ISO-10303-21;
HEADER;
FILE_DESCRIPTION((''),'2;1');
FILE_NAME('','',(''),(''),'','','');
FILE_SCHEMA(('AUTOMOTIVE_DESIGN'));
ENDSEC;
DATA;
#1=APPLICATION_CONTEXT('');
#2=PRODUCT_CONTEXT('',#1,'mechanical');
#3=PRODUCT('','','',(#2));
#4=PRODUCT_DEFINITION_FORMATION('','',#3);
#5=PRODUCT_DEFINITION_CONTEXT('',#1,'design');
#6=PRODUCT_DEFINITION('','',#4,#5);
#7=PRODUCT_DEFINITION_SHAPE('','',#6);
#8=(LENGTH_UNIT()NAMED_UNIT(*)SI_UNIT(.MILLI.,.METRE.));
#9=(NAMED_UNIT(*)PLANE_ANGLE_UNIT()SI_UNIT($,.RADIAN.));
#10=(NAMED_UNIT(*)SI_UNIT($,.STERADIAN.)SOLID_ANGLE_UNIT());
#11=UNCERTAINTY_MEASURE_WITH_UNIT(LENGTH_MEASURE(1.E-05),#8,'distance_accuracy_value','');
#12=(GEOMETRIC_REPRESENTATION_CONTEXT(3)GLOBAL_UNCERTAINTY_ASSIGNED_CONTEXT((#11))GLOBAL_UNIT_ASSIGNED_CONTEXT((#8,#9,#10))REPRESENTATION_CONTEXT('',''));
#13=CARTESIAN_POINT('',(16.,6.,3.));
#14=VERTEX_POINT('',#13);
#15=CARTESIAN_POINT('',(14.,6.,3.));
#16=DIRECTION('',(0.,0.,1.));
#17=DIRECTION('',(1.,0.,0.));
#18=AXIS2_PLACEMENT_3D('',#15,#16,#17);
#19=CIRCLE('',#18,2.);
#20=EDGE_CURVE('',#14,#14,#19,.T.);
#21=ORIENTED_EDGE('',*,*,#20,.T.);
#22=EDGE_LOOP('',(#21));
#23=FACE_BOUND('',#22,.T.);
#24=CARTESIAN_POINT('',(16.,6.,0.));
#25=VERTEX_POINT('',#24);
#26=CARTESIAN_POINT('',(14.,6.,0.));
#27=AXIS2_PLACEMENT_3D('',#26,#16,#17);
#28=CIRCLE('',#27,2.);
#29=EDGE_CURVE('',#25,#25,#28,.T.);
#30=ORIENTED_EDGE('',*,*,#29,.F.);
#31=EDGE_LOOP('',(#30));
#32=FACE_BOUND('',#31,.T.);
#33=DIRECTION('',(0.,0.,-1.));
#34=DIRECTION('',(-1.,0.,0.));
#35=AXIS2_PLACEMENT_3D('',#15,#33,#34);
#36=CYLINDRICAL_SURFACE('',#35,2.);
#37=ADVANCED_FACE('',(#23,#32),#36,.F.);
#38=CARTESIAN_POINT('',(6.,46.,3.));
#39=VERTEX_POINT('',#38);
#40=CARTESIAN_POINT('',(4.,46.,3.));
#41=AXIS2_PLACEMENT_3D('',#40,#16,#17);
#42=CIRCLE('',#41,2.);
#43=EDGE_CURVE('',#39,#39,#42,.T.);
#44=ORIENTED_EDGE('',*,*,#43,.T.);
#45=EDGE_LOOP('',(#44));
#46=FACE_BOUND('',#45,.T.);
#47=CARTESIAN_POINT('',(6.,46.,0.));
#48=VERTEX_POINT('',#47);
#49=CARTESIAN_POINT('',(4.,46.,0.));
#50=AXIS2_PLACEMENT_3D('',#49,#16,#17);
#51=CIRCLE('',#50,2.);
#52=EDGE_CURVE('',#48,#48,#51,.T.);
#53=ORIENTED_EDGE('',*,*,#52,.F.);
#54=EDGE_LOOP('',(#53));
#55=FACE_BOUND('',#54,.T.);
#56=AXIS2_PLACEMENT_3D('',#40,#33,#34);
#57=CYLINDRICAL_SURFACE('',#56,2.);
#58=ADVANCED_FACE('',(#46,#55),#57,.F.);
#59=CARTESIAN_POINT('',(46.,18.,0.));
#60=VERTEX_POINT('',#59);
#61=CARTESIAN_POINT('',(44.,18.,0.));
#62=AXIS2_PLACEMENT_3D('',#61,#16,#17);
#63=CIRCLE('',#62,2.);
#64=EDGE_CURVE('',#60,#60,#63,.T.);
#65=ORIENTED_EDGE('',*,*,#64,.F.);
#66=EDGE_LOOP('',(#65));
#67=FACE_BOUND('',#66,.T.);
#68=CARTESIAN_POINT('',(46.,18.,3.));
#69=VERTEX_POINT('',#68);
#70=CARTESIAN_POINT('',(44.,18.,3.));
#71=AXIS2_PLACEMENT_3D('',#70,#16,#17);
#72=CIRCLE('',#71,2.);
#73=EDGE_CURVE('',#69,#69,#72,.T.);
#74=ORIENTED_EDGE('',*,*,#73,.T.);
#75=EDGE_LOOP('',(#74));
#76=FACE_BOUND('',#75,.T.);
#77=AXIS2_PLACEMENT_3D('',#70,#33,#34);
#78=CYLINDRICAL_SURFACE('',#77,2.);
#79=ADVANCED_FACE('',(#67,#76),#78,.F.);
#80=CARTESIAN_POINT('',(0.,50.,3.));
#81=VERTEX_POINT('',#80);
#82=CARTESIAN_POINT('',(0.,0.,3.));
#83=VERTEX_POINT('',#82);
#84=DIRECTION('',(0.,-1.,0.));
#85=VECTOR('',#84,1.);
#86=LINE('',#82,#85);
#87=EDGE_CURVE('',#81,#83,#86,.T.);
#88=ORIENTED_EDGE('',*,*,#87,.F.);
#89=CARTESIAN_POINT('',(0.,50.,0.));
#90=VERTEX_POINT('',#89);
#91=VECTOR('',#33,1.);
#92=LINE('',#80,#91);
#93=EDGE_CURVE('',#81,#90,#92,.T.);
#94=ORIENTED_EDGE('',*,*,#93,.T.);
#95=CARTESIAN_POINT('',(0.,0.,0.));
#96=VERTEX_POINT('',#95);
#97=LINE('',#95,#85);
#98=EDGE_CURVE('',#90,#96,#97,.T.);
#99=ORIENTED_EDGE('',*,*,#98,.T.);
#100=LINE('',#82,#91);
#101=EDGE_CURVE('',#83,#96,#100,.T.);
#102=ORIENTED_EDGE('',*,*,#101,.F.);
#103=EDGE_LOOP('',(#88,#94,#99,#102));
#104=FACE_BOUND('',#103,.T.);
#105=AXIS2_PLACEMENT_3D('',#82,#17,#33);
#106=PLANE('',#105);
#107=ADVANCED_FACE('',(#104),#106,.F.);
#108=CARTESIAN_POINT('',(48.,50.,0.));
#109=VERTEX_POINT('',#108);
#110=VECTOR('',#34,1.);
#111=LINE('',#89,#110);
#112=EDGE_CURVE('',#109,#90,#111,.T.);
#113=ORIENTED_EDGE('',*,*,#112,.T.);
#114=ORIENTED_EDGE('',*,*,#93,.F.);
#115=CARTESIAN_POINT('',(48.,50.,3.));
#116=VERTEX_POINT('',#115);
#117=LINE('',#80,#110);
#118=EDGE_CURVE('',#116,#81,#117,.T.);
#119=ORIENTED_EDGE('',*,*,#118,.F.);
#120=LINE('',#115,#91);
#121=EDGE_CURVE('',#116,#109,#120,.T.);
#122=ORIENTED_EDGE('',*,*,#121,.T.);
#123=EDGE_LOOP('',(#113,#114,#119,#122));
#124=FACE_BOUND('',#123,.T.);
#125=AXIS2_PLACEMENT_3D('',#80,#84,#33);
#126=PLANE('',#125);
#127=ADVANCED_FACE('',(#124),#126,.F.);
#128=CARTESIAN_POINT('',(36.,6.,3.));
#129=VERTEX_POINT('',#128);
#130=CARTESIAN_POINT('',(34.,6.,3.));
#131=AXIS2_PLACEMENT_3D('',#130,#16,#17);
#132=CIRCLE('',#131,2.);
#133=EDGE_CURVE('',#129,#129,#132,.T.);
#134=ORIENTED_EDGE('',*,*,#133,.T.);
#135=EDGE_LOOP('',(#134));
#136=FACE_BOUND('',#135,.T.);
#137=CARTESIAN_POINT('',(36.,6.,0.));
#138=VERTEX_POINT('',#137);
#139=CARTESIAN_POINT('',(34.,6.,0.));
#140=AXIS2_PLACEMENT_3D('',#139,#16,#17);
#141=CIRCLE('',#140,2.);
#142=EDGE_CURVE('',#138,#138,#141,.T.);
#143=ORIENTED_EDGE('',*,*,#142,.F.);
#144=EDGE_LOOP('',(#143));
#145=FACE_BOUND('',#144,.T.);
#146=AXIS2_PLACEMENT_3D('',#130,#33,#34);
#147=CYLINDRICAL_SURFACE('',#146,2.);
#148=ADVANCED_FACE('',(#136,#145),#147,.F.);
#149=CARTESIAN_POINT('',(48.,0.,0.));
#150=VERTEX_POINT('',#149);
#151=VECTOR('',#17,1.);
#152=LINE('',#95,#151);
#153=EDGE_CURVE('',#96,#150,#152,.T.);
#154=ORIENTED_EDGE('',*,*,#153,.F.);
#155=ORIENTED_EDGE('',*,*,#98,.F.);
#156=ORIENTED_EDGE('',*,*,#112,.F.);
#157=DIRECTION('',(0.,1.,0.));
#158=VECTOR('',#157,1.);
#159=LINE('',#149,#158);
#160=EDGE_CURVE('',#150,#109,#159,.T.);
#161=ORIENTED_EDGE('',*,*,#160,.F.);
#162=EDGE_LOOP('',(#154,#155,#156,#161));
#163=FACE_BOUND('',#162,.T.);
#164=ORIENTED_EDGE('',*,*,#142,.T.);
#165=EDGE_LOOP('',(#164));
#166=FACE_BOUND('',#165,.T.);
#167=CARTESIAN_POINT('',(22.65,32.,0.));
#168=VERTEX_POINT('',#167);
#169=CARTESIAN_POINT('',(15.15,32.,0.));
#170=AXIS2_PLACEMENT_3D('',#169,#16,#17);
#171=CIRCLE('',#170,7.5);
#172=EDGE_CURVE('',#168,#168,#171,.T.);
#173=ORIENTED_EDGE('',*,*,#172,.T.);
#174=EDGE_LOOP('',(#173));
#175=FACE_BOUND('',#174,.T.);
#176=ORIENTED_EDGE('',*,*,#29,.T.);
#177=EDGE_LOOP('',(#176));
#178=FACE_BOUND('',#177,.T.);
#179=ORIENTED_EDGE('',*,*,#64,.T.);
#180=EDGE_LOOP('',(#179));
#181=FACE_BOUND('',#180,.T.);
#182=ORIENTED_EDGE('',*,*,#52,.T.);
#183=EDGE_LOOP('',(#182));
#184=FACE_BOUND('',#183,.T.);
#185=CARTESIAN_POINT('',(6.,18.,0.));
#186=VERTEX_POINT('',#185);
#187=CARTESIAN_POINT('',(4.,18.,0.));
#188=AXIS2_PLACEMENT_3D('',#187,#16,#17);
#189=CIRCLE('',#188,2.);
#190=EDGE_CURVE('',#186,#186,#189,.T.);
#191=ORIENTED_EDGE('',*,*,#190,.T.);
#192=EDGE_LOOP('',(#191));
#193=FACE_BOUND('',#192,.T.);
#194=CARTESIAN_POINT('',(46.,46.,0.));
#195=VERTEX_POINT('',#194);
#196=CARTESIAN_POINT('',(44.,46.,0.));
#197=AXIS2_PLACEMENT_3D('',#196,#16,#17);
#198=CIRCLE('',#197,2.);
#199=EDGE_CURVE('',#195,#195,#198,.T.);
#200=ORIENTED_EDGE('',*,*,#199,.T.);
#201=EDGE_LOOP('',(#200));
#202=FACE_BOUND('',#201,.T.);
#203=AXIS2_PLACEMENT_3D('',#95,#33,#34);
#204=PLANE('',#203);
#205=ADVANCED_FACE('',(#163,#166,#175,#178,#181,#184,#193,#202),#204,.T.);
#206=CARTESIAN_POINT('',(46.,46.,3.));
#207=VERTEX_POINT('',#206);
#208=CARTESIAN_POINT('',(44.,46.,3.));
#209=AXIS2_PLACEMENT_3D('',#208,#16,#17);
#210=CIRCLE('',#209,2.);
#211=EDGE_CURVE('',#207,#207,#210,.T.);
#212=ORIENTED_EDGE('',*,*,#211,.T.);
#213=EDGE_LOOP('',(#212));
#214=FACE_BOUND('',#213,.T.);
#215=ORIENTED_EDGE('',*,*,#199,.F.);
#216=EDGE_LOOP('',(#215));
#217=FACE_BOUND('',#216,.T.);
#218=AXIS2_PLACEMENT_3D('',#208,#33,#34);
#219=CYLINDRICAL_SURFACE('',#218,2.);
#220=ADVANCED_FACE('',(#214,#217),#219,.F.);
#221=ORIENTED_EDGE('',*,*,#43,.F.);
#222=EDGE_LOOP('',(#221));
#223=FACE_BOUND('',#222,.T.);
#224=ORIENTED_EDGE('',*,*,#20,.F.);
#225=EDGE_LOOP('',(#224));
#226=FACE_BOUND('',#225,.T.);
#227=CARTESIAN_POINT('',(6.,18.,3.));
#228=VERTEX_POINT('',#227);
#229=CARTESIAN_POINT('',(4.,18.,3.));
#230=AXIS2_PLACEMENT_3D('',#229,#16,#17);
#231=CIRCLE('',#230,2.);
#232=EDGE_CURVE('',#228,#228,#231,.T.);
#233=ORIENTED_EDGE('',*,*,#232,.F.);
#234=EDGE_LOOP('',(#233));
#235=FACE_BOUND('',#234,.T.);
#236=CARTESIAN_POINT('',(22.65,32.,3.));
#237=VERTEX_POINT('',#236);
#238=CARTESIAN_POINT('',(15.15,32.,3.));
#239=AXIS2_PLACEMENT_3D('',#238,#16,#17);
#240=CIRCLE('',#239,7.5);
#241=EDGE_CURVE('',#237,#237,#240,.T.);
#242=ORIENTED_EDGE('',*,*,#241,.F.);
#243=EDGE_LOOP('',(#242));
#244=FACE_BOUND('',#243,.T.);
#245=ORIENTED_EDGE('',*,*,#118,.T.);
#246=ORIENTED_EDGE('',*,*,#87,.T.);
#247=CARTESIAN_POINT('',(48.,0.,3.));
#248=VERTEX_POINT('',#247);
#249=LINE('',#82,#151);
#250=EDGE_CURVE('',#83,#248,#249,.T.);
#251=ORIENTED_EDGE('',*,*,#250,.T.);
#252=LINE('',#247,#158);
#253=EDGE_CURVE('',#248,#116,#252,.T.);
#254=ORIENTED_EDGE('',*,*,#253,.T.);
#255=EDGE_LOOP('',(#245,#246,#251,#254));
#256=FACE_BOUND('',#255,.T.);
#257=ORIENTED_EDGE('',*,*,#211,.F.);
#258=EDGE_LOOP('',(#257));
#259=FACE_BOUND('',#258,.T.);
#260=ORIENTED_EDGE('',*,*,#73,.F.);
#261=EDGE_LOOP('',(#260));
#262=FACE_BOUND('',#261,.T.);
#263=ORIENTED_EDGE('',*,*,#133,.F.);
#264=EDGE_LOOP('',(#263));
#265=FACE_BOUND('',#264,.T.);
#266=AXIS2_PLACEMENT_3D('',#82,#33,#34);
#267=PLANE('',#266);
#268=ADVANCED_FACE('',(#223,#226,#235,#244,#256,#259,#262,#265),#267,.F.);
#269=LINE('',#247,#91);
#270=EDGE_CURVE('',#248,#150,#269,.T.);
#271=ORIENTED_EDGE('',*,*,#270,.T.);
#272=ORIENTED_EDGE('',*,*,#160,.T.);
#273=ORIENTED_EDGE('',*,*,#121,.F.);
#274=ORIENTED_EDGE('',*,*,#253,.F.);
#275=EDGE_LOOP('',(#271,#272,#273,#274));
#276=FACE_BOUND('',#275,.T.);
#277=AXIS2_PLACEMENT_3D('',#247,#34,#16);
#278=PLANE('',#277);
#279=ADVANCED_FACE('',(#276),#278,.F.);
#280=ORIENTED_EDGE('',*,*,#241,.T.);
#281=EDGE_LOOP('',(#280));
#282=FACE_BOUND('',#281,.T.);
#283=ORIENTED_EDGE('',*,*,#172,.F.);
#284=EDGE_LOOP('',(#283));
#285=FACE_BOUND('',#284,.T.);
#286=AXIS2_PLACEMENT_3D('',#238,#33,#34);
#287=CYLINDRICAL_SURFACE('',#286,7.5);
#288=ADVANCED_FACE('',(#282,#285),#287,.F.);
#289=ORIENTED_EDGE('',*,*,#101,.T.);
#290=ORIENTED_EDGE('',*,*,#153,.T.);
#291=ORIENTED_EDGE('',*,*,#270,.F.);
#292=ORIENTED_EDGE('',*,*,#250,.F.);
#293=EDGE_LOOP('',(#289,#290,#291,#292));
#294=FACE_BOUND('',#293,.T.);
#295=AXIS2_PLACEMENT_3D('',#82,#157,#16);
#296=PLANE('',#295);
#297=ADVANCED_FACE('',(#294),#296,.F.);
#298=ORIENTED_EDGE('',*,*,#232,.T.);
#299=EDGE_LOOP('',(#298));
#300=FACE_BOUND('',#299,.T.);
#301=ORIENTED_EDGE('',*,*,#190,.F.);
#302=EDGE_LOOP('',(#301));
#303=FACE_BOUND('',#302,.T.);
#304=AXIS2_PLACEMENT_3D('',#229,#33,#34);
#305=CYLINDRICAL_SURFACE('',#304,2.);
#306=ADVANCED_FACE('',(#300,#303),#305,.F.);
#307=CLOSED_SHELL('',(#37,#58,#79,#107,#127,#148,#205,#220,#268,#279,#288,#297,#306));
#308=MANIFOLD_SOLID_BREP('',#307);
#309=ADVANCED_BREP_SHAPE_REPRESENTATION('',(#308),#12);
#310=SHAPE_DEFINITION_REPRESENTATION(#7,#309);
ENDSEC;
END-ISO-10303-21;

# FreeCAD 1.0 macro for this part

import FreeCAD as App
import Part
import Sketcher
from FreeCAD import Vector
Q = App.Units.Quantity


def add_polygon(sketch, points):
    """Adds a closed chain of lines whose ends are joined by coincident constraints."""
    first, n = sketch.GeometryCount, len(points)
    for a, b in zip(points, points[1:] + points[:1]):
        sketch.addGeometry(Part.LineSegment(App.Vector(*a, 0), App.Vector(*b, 0)), False)
    for i in range(n):
        sketch.addConstraint(Sketcher.Constraint("Coincident", first + i, 2, first + (i + 1) % n, 1))

doc = App.newDocument("Part")
body = doc.addObject("PartDesign::Body", "Body")

# Sketch on XY plane
sketch1 = body.newObject("Sketcher::SketchObject", "Sketch")
sketch1.AttachmentSupport = (doc.getObject("XY_Plane"), [""])
sketch1.MapMode = "FlatFace"
add_polygon(sketch1, [(0, 50), (0, 0), (48, 0), (48, 50)])  # lines 0-3
sketch1.addGeometry(Part.Circle(Vector(14, 6, 0), Vector(0, 0, 1), 2), False)  # 4
sketch1.addGeometry(Part.Circle(Vector(4, 18, 0), Vector(0, 0, 1), 2), False)  # 5
sketch1.addGeometry(Part.Circle(Vector(34, 6, 0), Vector(0, 0, 1), 2), False)  # 6
sketch1.addGeometry(Part.Circle(Vector(44, 18, 0), Vector(0, 0, 1), 2), False)  # 7
sketch1.addGeometry(Part.Circle(Vector(15.15, 32, 0), Vector(0, 0, 1), 7.5), False)  # 8
sketch1.addGeometry(Part.Circle(Vector(4, 46, 0), Vector(0, 0, 1), 2), False)  # 9
sketch1.addGeometry(Part.Circle(Vector(44, 46, 0), Vector(0, 0, 1), 2), False)  # 10
sketch1.addConstraint([
    Sketcher.Constraint("Vertical", 0),
    Sketcher.Constraint("Horizontal", 1),
    Sketcher.Constraint("Vertical", 2),
    Sketcher.Constraint("Horizontal", 3),
    Sketcher.Constraint("Coincident", 0, 2, -1, 1),
    Sketcher.Constraint("Equal", 4, 5),
    Sketcher.Constraint("Equal", 5, 6),
    Sketcher.Constraint("Equal", 6, 7),
    Sketcher.Constraint("Equal", 7, 9),
    Sketcher.Constraint("Equal", 9, 10),
    Sketcher.Constraint("Horizontal", 4, 3, 6, 3),
    Sketcher.Constraint("Horizontal", 5, 3, 7, 3),
    Sketcher.Constraint("Horizontal", 9, 3, 10, 3),
    Sketcher.Constraint("Vertical", 5, 3, 9, 3),
    Sketcher.Constraint("Vertical", 7, 3, 10, 3),
    Sketcher.Constraint("Diameter", 4, Q("4 mm")),
    Sketcher.Constraint("Diameter", 8, Q("15 mm")),
    Sketcher.Constraint("DistanceX", 1, 1, 1, 2, Q("48 mm")),
    Sketcher.Constraint("DistanceY", 0, 2, 0, 1, Q("50 mm")),
    Sketcher.Constraint("DistanceX", -1, 1, 4, 3, Q("14 mm")),
    Sketcher.Constraint("DistanceY", -1, 1, 4, 3, Q("6 mm")),
    Sketcher.Constraint("DistanceX", -1, 1, 5, 3, Q("4 mm")),
    Sketcher.Constraint("DistanceY", -1, 1, 5, 3, Q("18 mm")),
    Sketcher.Constraint("DistanceX", -1, 1, 6, 3, Q("34 mm")),
    Sketcher.Constraint("DistanceX", -1, 1, 7, 3, Q("44 mm")),
    Sketcher.Constraint("DistanceY", -1, 1, 8, 3, Q("32 mm")),
    Sketcher.Constraint("DistanceY", -1, 1, 9, 3, Q("46 mm")),
    Sketcher.Constraint("DistanceX", -1, 1, 8, 3, Q("15.15 mm")),
])
pad1 = body.newObject("PartDesign::Pad", "Pad")
pad1.Profile = sketch1
pad1.Length = 3

doc.recompute()
